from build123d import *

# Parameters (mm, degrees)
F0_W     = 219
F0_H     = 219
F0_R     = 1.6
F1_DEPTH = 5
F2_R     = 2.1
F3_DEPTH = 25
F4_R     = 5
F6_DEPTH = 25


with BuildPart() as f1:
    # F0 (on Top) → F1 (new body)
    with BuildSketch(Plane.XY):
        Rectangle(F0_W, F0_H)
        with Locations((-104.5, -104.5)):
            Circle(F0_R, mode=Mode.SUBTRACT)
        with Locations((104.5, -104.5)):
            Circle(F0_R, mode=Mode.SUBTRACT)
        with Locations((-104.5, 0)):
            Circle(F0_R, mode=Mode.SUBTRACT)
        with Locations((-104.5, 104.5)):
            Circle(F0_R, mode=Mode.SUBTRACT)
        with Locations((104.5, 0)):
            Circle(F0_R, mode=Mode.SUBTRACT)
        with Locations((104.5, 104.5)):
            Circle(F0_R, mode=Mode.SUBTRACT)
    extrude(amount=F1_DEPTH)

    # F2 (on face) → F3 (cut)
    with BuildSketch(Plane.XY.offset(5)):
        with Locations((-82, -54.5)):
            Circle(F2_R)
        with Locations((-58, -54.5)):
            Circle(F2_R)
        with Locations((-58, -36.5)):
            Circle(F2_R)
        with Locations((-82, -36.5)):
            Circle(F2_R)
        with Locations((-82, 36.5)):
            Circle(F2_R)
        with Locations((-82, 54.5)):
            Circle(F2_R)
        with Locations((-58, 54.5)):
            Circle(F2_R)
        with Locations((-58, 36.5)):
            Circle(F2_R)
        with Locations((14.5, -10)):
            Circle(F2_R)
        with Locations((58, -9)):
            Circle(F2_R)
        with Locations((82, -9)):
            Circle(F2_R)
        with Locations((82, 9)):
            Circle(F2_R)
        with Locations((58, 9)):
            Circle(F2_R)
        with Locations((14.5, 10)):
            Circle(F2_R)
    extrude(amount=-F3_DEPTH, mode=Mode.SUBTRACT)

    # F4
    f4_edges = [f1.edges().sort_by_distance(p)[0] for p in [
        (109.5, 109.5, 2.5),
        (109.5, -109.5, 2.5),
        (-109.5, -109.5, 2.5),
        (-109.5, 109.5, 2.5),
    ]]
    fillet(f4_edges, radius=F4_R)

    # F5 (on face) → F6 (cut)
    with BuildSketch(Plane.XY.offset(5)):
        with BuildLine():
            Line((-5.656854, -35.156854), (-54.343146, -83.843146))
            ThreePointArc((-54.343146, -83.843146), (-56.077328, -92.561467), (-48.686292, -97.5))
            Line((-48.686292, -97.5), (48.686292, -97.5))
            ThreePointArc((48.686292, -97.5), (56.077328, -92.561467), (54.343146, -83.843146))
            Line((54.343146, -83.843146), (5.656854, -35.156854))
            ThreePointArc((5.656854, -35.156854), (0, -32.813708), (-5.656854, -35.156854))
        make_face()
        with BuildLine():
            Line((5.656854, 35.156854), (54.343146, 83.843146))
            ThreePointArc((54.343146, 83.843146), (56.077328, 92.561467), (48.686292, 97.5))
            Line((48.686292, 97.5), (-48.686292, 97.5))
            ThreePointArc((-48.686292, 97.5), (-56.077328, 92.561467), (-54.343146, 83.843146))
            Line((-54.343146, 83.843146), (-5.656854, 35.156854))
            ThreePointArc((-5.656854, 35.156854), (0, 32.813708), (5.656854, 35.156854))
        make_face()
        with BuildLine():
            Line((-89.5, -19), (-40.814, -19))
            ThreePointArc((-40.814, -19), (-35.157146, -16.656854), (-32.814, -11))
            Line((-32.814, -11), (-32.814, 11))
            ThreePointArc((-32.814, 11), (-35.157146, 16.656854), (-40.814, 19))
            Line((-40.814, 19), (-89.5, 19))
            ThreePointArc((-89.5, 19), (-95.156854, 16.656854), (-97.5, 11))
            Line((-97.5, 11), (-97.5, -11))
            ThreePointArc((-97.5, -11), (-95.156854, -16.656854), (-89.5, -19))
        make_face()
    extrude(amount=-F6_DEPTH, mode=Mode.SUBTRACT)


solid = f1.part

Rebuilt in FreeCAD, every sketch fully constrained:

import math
import FreeCAD as App
import Part
import Sketcher

V = App.Vector


def edges_at(feature, points):
    """Names of the edges that pass closest to the given points."""
    edges = feature.Shape.Edges
    near = lambda p: min(range(len(edges)), key=lambda i: edges[i].distToShape(Part.Vertex(*p))[0])
    return sorted({f"Edge{near(p) + 1}" for p in points})


def add_polygon(sketch, points):
    """Adds a closed chain of lines whose ends are joined by coincident constraints."""
    first, n = sketch.GeometryCount, len(points)
    for a, b in zip(points, points[1:] + points[:1]):
        sketch.addGeometry(Part.LineSegment(App.Vector(*a, 0), App.Vector(*b, 0)), False)
    for i in range(n):
        sketch.addConstraint(Sketcher.Constraint("Coincident", first + i, 2, first + (i + 1) % n, 1))

doc = App.newDocument("Part")
body = doc.addObject("PartDesign::Body", "Body")

# Sketch on XY plane
sketch1 = doc.addObject("Sketcher::SketchObject", "Sketch")
body.addObject(sketch1)
sketch1.AttachmentSupport = (doc.XY_Plane, [""])
sketch1.MapMode = "FlatFace"
add_polygon(sketch1, [(-109.5, 109.5), (-109.5, -109.5), (109.5, -109.5), (109.5, 109.5)])  # lines 0-3
sketch1.addGeometry(Part.Circle(V(-104.5, -104.5, 0), V(0, 0, 1), 1.6), False)  # 4
sketch1.addGeometry(Part.Circle(V(104.5, -104.5, 0), V(0, 0, 1), 1.6), False)  # 5
sketch1.addGeometry(Part.Circle(V(-104.5, 0, 0), V(0, 0, 1), 1.6), False)  # 6
sketch1.addGeometry(Part.Circle(V(-104.5, 104.5, 0), V(0, 0, 1), 1.6), False)  # 7
sketch1.addGeometry(Part.Circle(V(104.5, 0, 0), V(0, 0, 1), 1.6), False)  # 8
sketch1.addGeometry(Part.Circle(V(104.5, 104.5, 0), V(0, 0, 1), 1.6), False)  # 9
sketch1.addConstraint([
    Sketcher.Constraint("Vertical", 0),
    Sketcher.Constraint("Horizontal", 1),
    Sketcher.Constraint("Vertical", 2),
    Sketcher.Constraint("Horizontal", 3),
    Sketcher.Constraint("Equal", 4, 5),
    Sketcher.Constraint("Equal", 5, 6),
    Sketcher.Constraint("Equal", 6, 7),
    Sketcher.Constraint("Equal", 7, 8),
    Sketcher.Constraint("Equal", 8, 9),
    Sketcher.Constraint("Symmetric", 5, 3, 7, 3, -1, 1),
    Sketcher.Constraint("Symmetric", 6, 3, 8, 3, -1, 1),
    Sketcher.Constraint("Symmetric", 4, 3, 9, 3, -1, 1),
    Sketcher.Constraint("Symmetric", 0, 2, 2, 2, -1, 1),
    Sketcher.Constraint("Symmetric", 4, 3, 5, 3, -2),
    Sketcher.Constraint("PointOnObject", 6, 3, -1),
    Sketcher.Constraint("Vertical", 4, 3, 6, 3),
    Sketcher.Constraint("Equal", 3, 0),
    Sketcher.Constraint("Diameter", 4, 3.2),
    Sketcher.Constraint("DistanceX", 1, 1, 1, 2, 219.0),
    Sketcher.Constraint("DistanceX", 4, 3, 5, 3, 209.0),
    Sketcher.Constraint("DistanceY", 4, 3, 7, 3, 209.0),
])
pad1 = doc.addObject("PartDesign::Pad", "Pad")
body.addObject(pad1)
pad1.Profile = sketch1
pad1.Length = 5

# Sketch on XY plane
sketch2 = doc.addObject("Sketcher::SketchObject", "Sketch001")
body.addObject(sketch2)
sketch2.AttachmentSupport = (doc.XY_Plane, [""])
sketch2.MapMode = "FlatFace"
sketch2.AttachmentOffset = App.Placement(V(0, 0, 5), App.Rotation())
sketch2.addGeometry([
    Part.Circle(V(-82, -54.5, 0), V(0, 0, 1), 2.1),  # 0
    Part.Circle(V(-58, -54.5, 0), V(0, 0, 1), 2.1),  # 1
    Part.Circle(V(-58, -36.5, 0), V(0, 0, 1), 2.1),  # 2
    Part.Circle(V(-82, -36.5, 0), V(0, 0, 1), 2.1),  # 3
    Part.Circle(V(-82, 36.5, 0), V(0, 0, 1), 2.1),  # 4
    Part.Circle(V(-82, 54.5, 0), V(0, 0, 1), 2.1),  # 5
    Part.Circle(V(-58, 54.5, 0), V(0, 0, 1), 2.1),  # 6
    Part.Circle(V(-58, 36.5, 0), V(0, 0, 1), 2.1),  # 7
    Part.Circle(V(14.5, -10, 0), V(0, 0, 1), 2.1),  # 8
    Part.Circle(V(58, -9, 0), V(0, 0, 1), 2.1),  # 9
    Part.Circle(V(82, -9, 0), V(0, 0, 1), 2.1),  # 10
    Part.Circle(V(82, 9, 0), V(0, 0, 1), 2.1),  # 11
    Part.Circle(V(58, 9, 0), V(0, 0, 1), 2.1),  # 12
    Part.Circle(V(14.5, 10, 0), V(0, 0, 1), 2.1),  # 13
], False)
sketch2.addConstraint([
    Sketcher.Constraint("Equal", 0, 1),
    Sketcher.Constraint("Equal", 1, 2),
    Sketcher.Constraint("Equal", 2, 3),
    Sketcher.Constraint("Equal", 3, 4),
    Sketcher.Constraint("Equal", 4, 5),
    Sketcher.Constraint("Equal", 5, 6),
    Sketcher.Constraint("Equal", 6, 7),
    Sketcher.Constraint("Equal", 7, 8),
    Sketcher.Constraint("Equal", 8, 9),
    Sketcher.Constraint("Equal", 9, 10),
    Sketcher.Constraint("Equal", 10, 11),
    Sketcher.Constraint("Equal", 11, 12),
    Sketcher.Constraint("Equal", 12, 13),
    Sketcher.Constraint("Symmetric", 3, 3, 4, 3, -1),
    Sketcher.Constraint("Symmetric", 0, 3, 5, 3, -1),
    Sketcher.Constraint("Symmetric", 1, 3, 6, 3, -1),
    Sketcher.Constraint("Symmetric", 2, 3, 7, 3, -1),
    Sketcher.Constraint("Symmetric", 10, 3, 11, 3, -1),
    Sketcher.Constraint("Symmetric", 9, 3, 12, 3, -1),
    Sketcher.Constraint("Symmetric", 8, 3, 13, 3, -1),
    Sketcher.Constraint("Horizontal", 0, 3, 1, 3),
    Sketcher.Constraint("Horizontal", 2, 3, 3, 3),
    Sketcher.Constraint("Horizontal", 9, 3, 10, 3),
    Sketcher.Constraint("Vertical", 1, 3, 2, 3),
    Sketcher.Constraint("Vertical", 0, 3, 3, 3),
    Sketcher.Constraint("Diameter", 0, 4.2),
    Sketcher.Constraint("DistanceX", 0, 3, -1, 1, 82.0),
    Sketcher.Constraint("DistanceX", 1, 3, -1, 1, 58.0),
    Sketcher.Constraint("DistanceY", 8, 3, -1, 1, 10.0),
    Sketcher.Constraint("DistanceX", -1, 1, 9, 3, 58.0),
    Sketcher.Constraint("DistanceY", 9, 3, -1, 1, 9.0),
    Sketcher.Constraint("DistanceX", -1, 1, 10, 3, 82.0),
    Sketcher.Constraint("DistanceY", 1, 3, 2, 3, 18.0),
    Sketcher.Constraint("DistanceY", 3, 3, 4, 3, 73.0),
    Sketcher.Constraint("DistanceX", -1, 1, 8, 3, 14.5),
])
pocket1 = doc.addObject("PartDesign::Pocket", "Pocket")
body.addObject(pocket1)
pocket1.Profile = sketch2
pocket1.Length = 25
doc.recompute()

fillet = doc.addObject("PartDesign::Fillet", "Fillet")
body.addObject(fillet)
fillet.Base = (pocket1, edges_at(pocket1, [
    (109.5, 109.5, 2.5),
    (109.5, -109.5, 2.5),
    (-109.5, -109.5, 2.5),
    (-109.5, 109.5, 2.5),
]))
fillet.Radius = 5

# Sketch on XY plane
sketch3 = doc.addObject("Sketcher::SketchObject", "Sketch002")
body.addObject(sketch3)
sketch3.AttachmentSupport = (doc.XY_Plane, [""])
sketch3.MapMode = "FlatFace"
sketch3.AttachmentOffset = App.Placement(V(0, 0, 5), App.Rotation())
sketch3.addGeometry([
    Part.LineSegment(V(-5.656854, -35.156854, 0), V(-54.343146, -83.843146, 0)),  # 0
    Part.ArcOfCircle(Part.Circle(V(-48.686292, -89.5, 0), V(0, 0, 1), 8), math.radians(135.000002), math.radians(269.999997)),  # 1
    Part.LineSegment(V(-48.686292, -97.5, 0), V(48.686292, -97.5, 0)),  # 2
    Part.ArcOfCircle(Part.Circle(V(48.686292, -89.5, 0), V(0, 0, 1), 8), math.radians(-89.999997), math.radians(44.999998)),  # 3
    Part.LineSegment(V(54.343146, -83.843146, 0), V(5.656854, -35.156854, 0)),  # 4
    Part.ArcOfCircle(Part.Circle(V(0, -40.813707, 0), V(0, 0, 1), 7.999999), math.radians(44.999994), math.radians(135.000006)),  # 5
    Part.LineSegment(V(5.656854, 35.156854, 0), V(54.343146, 83.843146, 0)),  # 6
    Part.ArcOfCircle(Part.Circle(V(48.686292, 89.5, 0), V(0, 0, 1), 8), math.radians(-44.999998), math.radians(89.999997)),  # 7
    Part.LineSegment(V(48.686292, 97.5, 0), V(-48.686292, 97.5, 0)),  # 8
    Part.ArcOfCircle(Part.Circle(V(-48.686292, 89.5, 0), V(0, 0, 1), 8), math.radians(90.000003), math.radians(224.999998)),  # 9
    Part.LineSegment(V(-54.343146, 83.843146, 0), V(-5.656854, 35.156854, 0)),  # 10
    Part.ArcOfCircle(Part.Circle(V(0, 40.813707, 0), V(0, 0, 1), 7.999999), math.radians(-135.000006), math.radians(-44.999994)),  # 11
    Part.LineSegment(V(-89.5, -19, 0), V(-40.814, -19, 0)),  # 12
    Part.ArcOfCircle(Part.Circle(V(-40.814001, -10.999999, 0), V(0, 0, 1), 8.000001), math.radians(-89.999994), math.radians(-0.000006)),  # 13
    Part.LineSegment(V(-32.814, -11, 0), V(-32.814, 11, 0)),  # 14
    Part.ArcOfCircle(Part.Circle(V(-40.814001, 10.999999, 0), V(0, 0, 1), 8.000001), math.radians(0.000006), math.radians(89.999994)),  # 15
    Part.LineSegment(V(-40.814, 19, 0), V(-89.5, 19, 0)),  # 16
    Part.ArcOfCircle(Part.Circle(V(-89.499999, 10.999999, 0), V(0, 0, 1), 8.000001), math.radians(90.000006), math.radians(179.999994)),  # 17
    Part.LineSegment(V(-97.5, 11, 0), V(-97.5, -11, 0)),  # 18
    Part.ArcOfCircle(Part.Circle(V(-89.499999, -10.999999, 0), V(0, 0, 1), 8.000001), math.radians(-179.999994), math.radians(-90.000006)),  # 19
], False)
sketch3.addConstraint([
    Sketcher.Constraint("Tangent", 0, 2, 1, 1),
    Sketcher.Constraint("Tangent", 1, 2, 2, 1),
    Sketcher.Constraint("Tangent", 2, 2, 3, 1),
    Sketcher.Constraint("Tangent", 3, 2, 4, 1),
    Sketcher.Constraint("Tangent", 4, 2, 5, 1),
    Sketcher.Constraint("Tangent", 5, 2, 0, 1),
    Sketcher.Constraint("Tangent", 6, 2, 7, 1),
    Sketcher.Constraint("Tangent", 7, 2, 8, 1),
    Sketcher.Constraint("Tangent", 8, 2, 9, 1),
    Sketcher.Constraint("Tangent", 9, 2, 10, 1),
    Sketcher.Constraint("Tangent", 10, 2, 11, 1),
    Sketcher.Constraint("Tangent", 11, 2, 6, 1),
    Sketcher.Constraint("Tangent", 12, 2, 13, 1),
    Sketcher.Constraint("Tangent", 13, 2, 14, 1),
    Sketcher.Constraint("Tangent", 14, 2, 15, 1),
    Sketcher.Constraint("Tangent", 15, 2, 16, 1),
    Sketcher.Constraint("Tangent", 16, 2, 17, 1),
    Sketcher.Constraint("Tangent", 17, 2, 18, 1),
    Sketcher.Constraint("Tangent", 18, 2, 19, 1),
    Sketcher.Constraint("Tangent", 19, 2, 12, 1),
    Sketcher.Constraint("Horizontal", 2),
    Sketcher.Constraint("Horizontal", 8),
    Sketcher.Constraint("Horizontal", 12),
    Sketcher.Constraint("Vertical", 14),
    Sketcher.Constraint("Horizontal", 16),
    Sketcher.Constraint("Vertical", 18),
    Sketcher.Constraint("Equal", 1, 3),
    Sketcher.Constraint("Equal", 3, 5),
    Sketcher.Constraint("Equal", 5, 7),
    Sketcher.Constraint("Equal", 7, 9),
    Sketcher.Constraint("Equal", 9, 11),
    Sketcher.Constraint("Equal", 9, 13),
    Sketcher.Constraint("Equal", 13, 15),
    Sketcher.Constraint("Equal", 15, 17),
    Sketcher.Constraint("Equal", 17, 19),
    Sketcher.Constraint("Symmetric", 1, 3, 7, 3, -1, 1),
    Sketcher.Constraint("Symmetric", 5, 3, 11, 3, -1, 1),
    Sketcher.Constraint("Symmetric", 0, 2, 3, 2, -2),
    Sketcher.Constraint("Perpendicular", 0, 4),
    Sketcher.Constraint("Perpendicular", 6, 10),
    Sketcher.Constraint("Radius", 1, 8.0),
    Sketcher.Constraint("DistanceY", 14, 1, 14, 2, 22.0),
    Sketcher.Constraint("DistanceY", 13, 3, -1, 1, 10.999999),
    Sketcher.Constraint("DistanceY", 3, 3, 7, 3, 179.0),
    Sketcher.Constraint("DistanceY", 4, 2, 6, 2, 119.0),
    Sketcher.Constraint("DistanceX", 17, 3, -1, 1, 89.499999),
    Sketcher.Constraint("DistanceX", 12, 1, 12, 2, 48.686),
])
pocket2 = doc.addObject("PartDesign::Pocket", "Pocket001")
body.addObject(pocket2)
pocket2.Profile = sketch3
pocket2.Length = 25

doc.recompute()
